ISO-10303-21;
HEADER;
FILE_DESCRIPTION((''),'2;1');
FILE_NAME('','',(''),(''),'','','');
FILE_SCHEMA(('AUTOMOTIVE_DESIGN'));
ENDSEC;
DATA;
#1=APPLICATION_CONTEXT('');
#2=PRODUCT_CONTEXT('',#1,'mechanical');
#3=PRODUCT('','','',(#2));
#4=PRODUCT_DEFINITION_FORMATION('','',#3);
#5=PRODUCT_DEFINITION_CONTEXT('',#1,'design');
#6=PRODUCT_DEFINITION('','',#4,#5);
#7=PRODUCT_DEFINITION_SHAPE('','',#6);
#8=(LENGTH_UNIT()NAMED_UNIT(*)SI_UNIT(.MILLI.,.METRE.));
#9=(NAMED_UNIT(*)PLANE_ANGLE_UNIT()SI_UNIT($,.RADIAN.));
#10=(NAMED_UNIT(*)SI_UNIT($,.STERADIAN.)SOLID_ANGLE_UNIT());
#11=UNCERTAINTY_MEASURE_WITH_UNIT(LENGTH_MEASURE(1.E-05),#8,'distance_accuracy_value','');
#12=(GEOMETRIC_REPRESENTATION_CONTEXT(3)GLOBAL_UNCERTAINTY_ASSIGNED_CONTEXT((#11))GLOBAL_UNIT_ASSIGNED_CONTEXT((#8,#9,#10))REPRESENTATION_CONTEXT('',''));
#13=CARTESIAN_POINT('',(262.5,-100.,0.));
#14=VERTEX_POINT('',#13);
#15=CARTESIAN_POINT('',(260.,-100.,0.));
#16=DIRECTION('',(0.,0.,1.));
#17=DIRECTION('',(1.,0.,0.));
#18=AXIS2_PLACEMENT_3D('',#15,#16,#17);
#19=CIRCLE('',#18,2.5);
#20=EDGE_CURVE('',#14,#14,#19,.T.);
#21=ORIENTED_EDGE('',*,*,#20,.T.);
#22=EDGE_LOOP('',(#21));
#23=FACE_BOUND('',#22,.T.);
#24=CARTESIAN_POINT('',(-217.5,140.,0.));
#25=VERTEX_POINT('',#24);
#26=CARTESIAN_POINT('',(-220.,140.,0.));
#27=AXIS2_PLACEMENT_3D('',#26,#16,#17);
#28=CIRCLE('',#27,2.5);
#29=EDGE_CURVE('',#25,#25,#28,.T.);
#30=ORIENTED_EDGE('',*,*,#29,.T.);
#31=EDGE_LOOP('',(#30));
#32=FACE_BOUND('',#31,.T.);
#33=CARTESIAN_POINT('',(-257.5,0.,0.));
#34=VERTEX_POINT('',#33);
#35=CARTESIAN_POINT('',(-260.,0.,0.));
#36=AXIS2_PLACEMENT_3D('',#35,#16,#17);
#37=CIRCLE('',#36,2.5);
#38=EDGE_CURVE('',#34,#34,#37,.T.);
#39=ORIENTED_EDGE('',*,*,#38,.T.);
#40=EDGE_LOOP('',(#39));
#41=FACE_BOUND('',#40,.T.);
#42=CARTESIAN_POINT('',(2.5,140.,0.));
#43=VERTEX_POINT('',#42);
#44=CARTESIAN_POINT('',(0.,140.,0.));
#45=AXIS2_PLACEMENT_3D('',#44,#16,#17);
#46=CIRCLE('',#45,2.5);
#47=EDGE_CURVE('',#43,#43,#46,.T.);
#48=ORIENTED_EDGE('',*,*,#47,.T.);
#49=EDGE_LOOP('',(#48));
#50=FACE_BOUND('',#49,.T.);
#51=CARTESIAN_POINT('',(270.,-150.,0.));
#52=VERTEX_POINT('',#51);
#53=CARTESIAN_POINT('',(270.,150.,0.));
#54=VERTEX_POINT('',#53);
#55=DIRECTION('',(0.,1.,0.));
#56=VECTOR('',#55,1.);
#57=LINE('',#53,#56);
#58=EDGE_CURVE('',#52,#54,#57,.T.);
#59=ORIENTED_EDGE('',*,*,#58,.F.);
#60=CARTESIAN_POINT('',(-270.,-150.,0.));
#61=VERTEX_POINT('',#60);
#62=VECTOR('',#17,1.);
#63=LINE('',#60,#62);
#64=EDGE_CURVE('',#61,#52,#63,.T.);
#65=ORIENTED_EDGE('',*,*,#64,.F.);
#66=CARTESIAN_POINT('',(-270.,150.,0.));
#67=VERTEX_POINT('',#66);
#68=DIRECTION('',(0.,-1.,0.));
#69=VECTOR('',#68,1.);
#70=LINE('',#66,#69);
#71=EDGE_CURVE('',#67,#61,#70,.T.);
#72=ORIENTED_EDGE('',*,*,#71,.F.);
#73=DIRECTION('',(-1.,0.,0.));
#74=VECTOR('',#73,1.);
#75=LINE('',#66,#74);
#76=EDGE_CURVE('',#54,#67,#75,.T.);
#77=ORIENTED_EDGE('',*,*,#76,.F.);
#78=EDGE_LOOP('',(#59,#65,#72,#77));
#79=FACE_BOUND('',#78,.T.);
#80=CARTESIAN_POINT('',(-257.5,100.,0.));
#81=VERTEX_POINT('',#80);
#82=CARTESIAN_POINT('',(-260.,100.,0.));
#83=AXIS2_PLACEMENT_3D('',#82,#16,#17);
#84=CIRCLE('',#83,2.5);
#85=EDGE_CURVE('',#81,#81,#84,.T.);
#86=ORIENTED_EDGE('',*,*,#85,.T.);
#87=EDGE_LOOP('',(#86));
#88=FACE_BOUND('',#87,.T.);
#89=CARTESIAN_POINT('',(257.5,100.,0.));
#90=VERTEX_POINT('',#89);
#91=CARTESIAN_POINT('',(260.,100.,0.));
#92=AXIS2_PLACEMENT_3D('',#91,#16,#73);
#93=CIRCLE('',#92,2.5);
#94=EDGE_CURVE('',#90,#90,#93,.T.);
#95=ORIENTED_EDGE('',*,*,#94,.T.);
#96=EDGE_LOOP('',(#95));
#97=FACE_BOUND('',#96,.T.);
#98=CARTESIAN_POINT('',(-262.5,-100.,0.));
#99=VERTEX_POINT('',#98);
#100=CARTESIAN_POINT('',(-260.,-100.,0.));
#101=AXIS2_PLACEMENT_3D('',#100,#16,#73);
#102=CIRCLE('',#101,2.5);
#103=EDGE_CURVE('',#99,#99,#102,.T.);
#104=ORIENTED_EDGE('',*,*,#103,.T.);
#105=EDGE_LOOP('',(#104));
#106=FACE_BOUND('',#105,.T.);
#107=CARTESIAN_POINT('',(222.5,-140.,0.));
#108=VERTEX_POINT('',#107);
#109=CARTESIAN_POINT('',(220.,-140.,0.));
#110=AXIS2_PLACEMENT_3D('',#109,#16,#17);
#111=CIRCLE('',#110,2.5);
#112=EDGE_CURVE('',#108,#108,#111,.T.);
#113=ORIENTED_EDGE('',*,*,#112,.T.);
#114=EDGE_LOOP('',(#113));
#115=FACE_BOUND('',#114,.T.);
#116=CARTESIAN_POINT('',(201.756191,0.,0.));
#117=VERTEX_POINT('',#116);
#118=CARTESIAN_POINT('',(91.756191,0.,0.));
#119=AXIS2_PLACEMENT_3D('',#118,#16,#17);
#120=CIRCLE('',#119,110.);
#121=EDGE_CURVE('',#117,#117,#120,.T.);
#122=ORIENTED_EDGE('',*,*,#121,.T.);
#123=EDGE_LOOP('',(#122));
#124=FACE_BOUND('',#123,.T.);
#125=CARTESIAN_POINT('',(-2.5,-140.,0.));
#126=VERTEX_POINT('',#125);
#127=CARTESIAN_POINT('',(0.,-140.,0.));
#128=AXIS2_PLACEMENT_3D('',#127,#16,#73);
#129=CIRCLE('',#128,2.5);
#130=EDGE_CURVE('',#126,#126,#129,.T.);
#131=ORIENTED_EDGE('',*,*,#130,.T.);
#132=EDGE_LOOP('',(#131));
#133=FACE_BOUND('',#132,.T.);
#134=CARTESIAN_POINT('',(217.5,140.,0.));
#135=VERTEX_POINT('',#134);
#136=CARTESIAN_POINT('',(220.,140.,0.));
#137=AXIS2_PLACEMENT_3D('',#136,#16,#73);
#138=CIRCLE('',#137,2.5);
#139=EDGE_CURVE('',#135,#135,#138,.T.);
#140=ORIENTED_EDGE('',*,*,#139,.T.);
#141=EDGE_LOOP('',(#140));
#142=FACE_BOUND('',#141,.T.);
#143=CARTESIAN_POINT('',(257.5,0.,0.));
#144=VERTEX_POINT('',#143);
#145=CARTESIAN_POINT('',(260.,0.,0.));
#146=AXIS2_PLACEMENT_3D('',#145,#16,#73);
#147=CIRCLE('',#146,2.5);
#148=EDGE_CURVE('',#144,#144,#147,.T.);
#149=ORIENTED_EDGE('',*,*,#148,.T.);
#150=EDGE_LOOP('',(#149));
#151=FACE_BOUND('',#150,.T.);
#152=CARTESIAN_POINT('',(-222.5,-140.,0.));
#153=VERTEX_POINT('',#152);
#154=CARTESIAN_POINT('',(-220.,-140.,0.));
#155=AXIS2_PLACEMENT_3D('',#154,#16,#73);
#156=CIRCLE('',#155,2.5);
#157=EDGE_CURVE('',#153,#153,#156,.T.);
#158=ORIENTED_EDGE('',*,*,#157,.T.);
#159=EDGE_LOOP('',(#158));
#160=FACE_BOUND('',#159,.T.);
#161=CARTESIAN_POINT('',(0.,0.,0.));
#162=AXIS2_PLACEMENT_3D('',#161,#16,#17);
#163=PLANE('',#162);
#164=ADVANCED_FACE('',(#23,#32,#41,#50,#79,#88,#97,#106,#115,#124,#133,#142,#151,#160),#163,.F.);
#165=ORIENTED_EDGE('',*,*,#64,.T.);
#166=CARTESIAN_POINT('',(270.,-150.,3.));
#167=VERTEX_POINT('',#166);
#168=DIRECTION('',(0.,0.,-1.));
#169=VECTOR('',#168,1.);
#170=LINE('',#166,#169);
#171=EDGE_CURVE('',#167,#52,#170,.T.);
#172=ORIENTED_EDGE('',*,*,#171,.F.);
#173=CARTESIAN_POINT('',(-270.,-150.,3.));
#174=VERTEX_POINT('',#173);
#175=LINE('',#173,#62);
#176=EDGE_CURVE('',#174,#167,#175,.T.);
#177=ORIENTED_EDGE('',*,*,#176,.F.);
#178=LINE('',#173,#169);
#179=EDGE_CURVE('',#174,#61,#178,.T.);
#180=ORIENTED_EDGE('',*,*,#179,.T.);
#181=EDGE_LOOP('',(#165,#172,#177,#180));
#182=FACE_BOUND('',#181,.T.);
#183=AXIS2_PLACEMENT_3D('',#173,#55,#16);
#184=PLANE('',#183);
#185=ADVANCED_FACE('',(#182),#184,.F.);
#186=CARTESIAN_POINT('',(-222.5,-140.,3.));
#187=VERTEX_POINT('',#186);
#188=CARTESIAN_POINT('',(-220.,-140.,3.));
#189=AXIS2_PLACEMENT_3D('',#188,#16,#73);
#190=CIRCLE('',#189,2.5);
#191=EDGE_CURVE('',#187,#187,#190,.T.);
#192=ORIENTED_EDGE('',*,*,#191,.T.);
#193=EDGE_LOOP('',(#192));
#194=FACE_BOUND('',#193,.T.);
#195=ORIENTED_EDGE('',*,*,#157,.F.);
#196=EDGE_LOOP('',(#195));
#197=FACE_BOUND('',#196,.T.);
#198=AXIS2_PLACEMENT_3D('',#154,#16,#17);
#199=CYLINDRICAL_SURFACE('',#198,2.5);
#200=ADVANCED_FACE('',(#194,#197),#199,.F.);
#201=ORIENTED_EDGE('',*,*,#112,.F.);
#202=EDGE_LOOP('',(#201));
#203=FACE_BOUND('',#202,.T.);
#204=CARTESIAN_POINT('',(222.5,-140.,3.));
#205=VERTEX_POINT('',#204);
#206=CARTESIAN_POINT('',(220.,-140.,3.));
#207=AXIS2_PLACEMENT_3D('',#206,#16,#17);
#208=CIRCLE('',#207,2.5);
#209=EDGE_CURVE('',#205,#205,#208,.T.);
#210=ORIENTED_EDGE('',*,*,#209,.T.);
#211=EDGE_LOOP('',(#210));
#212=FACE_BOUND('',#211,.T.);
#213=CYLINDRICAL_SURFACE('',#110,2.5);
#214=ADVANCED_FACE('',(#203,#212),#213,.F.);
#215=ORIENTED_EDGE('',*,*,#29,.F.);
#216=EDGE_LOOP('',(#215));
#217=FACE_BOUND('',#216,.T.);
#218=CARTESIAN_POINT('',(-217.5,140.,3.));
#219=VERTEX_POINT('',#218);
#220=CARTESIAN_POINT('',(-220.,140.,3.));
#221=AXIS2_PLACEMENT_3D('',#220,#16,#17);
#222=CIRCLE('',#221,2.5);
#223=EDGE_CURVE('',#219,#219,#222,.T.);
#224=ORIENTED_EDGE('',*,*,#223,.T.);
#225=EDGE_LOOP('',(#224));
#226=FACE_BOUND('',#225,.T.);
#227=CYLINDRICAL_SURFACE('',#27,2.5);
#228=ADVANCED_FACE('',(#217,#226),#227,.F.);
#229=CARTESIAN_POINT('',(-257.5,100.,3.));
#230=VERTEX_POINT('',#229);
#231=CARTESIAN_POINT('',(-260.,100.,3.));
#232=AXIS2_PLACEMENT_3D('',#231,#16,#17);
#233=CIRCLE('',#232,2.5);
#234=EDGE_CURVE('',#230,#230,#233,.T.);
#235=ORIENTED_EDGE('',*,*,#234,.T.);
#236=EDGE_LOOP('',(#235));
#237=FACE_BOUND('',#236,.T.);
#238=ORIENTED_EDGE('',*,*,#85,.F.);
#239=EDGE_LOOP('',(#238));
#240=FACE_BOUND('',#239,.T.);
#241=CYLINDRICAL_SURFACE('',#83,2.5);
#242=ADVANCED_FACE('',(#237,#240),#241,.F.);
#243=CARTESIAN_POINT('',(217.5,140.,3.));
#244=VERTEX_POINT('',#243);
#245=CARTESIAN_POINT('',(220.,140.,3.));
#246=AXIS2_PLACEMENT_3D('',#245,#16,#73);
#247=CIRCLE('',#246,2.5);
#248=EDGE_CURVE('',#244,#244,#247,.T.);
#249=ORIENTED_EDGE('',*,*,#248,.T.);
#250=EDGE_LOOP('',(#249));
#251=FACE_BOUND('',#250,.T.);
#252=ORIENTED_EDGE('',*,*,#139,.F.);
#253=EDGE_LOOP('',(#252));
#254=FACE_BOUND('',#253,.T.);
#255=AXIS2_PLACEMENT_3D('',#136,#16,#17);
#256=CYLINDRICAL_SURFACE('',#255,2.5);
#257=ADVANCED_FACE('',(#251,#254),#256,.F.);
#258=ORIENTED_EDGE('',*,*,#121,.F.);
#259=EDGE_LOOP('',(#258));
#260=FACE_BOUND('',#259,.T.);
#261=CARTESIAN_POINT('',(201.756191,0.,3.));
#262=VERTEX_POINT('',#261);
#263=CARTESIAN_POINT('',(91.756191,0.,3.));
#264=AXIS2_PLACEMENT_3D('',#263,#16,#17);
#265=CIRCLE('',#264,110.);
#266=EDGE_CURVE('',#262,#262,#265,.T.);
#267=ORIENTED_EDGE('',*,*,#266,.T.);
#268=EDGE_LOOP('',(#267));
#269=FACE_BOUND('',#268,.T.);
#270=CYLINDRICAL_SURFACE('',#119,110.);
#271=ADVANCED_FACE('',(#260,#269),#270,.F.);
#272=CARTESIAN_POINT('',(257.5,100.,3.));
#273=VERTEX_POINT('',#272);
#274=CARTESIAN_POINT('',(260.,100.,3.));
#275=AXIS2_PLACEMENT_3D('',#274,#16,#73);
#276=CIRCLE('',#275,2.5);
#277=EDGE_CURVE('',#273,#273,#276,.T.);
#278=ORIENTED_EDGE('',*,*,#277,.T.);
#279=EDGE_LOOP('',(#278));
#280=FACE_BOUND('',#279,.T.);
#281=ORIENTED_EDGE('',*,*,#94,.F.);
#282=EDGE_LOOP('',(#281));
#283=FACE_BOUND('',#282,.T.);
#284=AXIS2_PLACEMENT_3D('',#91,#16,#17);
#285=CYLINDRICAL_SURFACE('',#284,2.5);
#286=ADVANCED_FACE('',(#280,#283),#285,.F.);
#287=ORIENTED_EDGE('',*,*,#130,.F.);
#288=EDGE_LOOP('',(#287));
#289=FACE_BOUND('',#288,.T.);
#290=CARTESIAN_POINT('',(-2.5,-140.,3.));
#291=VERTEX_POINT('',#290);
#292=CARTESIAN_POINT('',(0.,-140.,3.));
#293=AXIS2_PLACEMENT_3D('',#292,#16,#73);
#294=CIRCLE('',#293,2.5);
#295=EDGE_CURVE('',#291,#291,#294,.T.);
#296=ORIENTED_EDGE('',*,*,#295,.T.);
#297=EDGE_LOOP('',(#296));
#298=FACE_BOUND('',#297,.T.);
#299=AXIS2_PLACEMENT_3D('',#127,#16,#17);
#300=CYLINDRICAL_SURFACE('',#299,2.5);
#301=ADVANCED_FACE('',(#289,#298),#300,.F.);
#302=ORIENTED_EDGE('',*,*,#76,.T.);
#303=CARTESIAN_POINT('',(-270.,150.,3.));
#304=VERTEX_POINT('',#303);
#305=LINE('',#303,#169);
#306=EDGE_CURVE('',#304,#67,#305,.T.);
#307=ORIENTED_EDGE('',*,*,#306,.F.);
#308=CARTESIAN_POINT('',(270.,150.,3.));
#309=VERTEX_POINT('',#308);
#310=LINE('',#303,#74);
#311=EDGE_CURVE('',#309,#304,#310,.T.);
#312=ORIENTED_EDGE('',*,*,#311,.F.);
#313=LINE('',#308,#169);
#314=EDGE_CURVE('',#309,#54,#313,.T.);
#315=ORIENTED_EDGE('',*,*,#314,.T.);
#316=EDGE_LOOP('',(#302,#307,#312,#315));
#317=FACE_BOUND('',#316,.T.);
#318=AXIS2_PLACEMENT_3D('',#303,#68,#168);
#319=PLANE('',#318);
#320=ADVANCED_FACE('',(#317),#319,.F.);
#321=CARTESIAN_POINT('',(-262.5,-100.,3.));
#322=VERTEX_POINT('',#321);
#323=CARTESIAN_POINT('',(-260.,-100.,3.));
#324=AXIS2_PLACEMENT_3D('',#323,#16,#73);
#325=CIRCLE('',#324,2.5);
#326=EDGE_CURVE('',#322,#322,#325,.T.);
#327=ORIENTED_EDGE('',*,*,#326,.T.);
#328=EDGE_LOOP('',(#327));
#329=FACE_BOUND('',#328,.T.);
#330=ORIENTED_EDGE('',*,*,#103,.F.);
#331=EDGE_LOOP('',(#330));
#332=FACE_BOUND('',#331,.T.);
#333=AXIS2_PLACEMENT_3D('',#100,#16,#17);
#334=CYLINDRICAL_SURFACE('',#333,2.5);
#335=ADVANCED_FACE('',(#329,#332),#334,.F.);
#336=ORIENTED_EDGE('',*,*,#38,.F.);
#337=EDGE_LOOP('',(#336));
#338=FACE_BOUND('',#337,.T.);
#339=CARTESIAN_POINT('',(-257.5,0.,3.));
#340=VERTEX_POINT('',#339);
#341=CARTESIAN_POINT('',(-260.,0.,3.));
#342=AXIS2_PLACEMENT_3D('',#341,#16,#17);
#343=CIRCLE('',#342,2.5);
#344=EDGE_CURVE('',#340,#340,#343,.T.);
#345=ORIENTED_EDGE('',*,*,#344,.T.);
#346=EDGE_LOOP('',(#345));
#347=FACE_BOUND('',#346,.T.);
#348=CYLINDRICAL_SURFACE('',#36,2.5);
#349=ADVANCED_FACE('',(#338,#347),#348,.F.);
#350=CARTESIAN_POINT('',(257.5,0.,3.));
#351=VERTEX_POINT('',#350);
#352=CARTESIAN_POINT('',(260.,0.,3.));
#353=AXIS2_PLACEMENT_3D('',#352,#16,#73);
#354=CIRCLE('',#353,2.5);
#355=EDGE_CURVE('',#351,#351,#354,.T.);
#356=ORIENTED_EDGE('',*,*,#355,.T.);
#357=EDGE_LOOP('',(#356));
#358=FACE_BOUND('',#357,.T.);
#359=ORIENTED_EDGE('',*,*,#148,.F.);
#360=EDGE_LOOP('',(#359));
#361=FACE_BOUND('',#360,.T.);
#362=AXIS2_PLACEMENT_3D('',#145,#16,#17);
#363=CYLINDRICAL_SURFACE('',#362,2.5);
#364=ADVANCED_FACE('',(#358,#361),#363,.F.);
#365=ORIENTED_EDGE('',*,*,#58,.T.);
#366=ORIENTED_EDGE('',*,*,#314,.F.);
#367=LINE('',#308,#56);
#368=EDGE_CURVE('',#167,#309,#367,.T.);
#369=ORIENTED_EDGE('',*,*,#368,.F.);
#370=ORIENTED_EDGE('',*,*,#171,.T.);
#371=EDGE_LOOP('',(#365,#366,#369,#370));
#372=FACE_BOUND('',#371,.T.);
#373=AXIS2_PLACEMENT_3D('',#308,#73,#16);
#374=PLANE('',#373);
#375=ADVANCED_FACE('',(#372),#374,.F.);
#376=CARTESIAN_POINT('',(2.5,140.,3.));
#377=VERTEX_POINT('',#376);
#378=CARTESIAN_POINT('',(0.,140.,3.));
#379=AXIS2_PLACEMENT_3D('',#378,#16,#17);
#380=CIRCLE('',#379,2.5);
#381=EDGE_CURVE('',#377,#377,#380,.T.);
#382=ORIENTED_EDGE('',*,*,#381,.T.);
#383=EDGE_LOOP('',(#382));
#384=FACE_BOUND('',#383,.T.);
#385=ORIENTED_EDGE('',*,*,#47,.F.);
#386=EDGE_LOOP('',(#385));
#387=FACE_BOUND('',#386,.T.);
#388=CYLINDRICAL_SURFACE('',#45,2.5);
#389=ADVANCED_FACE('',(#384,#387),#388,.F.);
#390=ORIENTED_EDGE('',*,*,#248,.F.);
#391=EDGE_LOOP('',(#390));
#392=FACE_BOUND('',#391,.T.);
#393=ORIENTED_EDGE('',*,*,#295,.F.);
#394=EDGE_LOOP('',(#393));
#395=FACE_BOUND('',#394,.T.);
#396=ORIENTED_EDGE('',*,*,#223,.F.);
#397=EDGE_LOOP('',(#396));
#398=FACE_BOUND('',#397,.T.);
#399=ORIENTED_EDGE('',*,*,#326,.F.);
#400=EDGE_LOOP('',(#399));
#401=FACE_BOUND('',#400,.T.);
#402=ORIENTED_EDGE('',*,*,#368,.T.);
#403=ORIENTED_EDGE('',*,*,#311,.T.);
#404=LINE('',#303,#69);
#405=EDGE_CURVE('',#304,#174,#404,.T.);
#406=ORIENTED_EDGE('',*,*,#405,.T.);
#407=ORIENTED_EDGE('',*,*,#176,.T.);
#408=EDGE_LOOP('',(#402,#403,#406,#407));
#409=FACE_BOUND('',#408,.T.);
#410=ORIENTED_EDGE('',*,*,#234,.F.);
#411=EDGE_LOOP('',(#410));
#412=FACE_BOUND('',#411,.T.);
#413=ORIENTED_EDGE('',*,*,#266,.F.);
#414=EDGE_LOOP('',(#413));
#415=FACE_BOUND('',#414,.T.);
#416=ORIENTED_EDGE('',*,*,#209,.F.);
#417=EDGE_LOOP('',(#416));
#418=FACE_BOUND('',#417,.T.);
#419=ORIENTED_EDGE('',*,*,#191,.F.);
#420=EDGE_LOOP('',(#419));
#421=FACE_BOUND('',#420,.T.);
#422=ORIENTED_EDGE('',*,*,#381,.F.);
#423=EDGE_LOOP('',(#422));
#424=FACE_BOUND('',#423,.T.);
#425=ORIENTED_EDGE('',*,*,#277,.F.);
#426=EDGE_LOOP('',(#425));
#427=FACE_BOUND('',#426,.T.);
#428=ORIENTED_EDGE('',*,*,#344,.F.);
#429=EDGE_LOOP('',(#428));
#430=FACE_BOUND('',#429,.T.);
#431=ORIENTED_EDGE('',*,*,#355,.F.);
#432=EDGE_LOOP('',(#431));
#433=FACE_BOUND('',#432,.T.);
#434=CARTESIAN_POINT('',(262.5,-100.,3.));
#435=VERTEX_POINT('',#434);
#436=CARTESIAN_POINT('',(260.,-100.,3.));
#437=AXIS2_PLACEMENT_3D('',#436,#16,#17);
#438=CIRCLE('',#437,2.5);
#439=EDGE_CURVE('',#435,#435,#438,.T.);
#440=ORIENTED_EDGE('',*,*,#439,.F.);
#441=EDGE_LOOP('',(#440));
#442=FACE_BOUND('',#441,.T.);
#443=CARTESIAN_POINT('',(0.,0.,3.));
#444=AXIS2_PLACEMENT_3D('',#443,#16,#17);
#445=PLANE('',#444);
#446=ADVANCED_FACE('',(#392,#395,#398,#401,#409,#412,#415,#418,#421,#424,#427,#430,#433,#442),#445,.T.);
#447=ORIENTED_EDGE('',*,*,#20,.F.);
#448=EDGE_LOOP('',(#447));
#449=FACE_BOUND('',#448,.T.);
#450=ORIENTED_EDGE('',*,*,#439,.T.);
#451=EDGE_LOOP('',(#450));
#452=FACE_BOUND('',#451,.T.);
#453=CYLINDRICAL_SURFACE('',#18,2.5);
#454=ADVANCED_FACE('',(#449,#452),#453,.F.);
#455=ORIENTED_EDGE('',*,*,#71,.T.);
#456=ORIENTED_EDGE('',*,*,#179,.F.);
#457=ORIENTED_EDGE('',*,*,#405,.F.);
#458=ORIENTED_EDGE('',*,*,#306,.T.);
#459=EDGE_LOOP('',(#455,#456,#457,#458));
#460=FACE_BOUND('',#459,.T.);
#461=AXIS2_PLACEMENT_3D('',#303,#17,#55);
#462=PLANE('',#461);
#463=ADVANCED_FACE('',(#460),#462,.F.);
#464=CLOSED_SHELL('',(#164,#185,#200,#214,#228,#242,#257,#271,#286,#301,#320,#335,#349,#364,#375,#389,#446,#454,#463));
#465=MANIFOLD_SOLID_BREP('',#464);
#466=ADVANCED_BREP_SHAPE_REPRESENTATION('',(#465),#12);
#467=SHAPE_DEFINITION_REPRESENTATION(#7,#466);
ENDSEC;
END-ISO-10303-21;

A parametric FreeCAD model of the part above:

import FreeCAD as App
import Part
import Sketcher

doc = App.newDocument("Part")
body = doc.addObject("PartDesign::Body", "Body")

# Sketch on XY plane
sketch1 = body.newObject("Sketcher::SketchObject", "Sketch")
sketch1.AttachmentSupport = (doc.getObject("XY_Plane"), [""])
sketch1.MapMode = "FlatFace"
sketch1.addGeometry(Part.LineSegment(App.Vector(-270, 150, 0), App.Vector(-270, -150, 0)), False)
sketch1.addGeometry(Part.LineSegment(App.Vector(-270, -150, 0), App.Vector(270, -150, 0)), False)
sketch1.addGeometry(Part.LineSegment(App.Vector(270, -150, 0), App.Vector(270, 150, 0)), False)
sketch1.addGeometry(Part.LineSegment(App.Vector(270, 150, 0), App.Vector(-270, 150, 0)), False)
sketch1.addConstraint(Sketcher.Constraint("Coincident", 0, 2, 1, 1))
sketch1.addConstraint(Sketcher.Constraint("Coincident", 1, 2, 2, 1))
sketch1.addConstraint(Sketcher.Constraint("Coincident", 2, 2, 3, 1))
sketch1.addConstraint(Sketcher.Constraint("Coincident", 3, 2, 0, 1))
sketch1.addConstraint(Sketcher.Constraint("Vertical", 0))
sketch1.addConstraint(Sketcher.Constraint("Horizontal", 1))
sketch1.addConstraint(Sketcher.Constraint("Vertical", 2))
sketch1.addConstraint(Sketcher.Constraint("Horizontal", 3))
sketch1.addConstraint(Sketcher.Constraint("Symmetric", 0, 2, 2, 2, -1, 1))
sketch1.addConstraint(Sketcher.Constraint("DistanceX", 1, 1, 1, 2, 540.0))
sketch1.addConstraint(Sketcher.Constraint("DistanceY", 0, 2, 0, 1, 300.0))
pad1 = body.newObject("PartDesign::Pad", "Pad")
pad1.Profile = sketch1
pad1.Length = 3

# Sketch on XY plane
sketch2 = body.newObject("Sketcher::SketchObject", "Sketch001")
sketch2.AttachmentSupport = (doc.getObject("XY_Plane"), [""])
sketch2.MapMode = "FlatFace"
sketch2.AttachmentOffset = App.Placement(App.Vector(0, 0, 3), App.Rotation())
sketch2.addGeometry(Part.Circle(App.Vector(0, 140, 0), App.Vector(0, 0, 1), 2.5), False)
sketch2.addGeometry(Part.Circle(App.Vector(-220, 140, 0), App.Vector(0, 0, 1), 2.5), False)
sketch2.addGeometry(Part.Circle(App.Vector(-260, 0, 0), App.Vector(0, 0, 1), 2.5), False)
sketch2.addGeometry(Part.Circle(App.Vector(-260, 100, 0), App.Vector(0, 0, 1), 2.5), False)
sketch2.addGeometry(Part.Circle(App.Vector(-260, -100, 0), App.Vector(0, 0, 1), 2.5), False)
sketch2.addGeometry(Part.Circle(App.Vector(220, 140, 0), App.Vector(0, 0, 1), 2.5), False)
sketch2.addGeometry(Part.Circle(App.Vector(260, -100, 0), App.Vector(0, 0, 1), 2.5), False)
sketch2.addGeometry(Part.Circle(App.Vector(260, 0, 0), App.Vector(0, 0, 1), 2.5), False)
sketch2.addGeometry(Part.Circle(App.Vector(260, 100, 0), App.Vector(0, 0, 1), 2.5), False)
sketch2.addGeometry(Part.Circle(App.Vector(220, -140, 0), App.Vector(0, 0, 1), 2.5), False)
sketch2.addGeometry(Part.Circle(App.Vector(0, -140, 0), App.Vector(0, 0, 1), 2.5), False)
sketch2.addGeometry(Part.Circle(App.Vector(-220, -140, 0), App.Vector(0, 0, 1), 2.5), False)
sketch2.addConstraint(Sketcher.Constraint("Equal", 0, 1))
sketch2.addConstraint(Sketcher.Constraint("Equal", 1, 2))
sketch2.addConstraint(Sketcher.Constraint("Equal", 2, 3))
sketch2.addConstraint(Sketcher.Constraint("Equal", 3, 4))
sketch2.addConstraint(Sketcher.Constraint("Equal", 4, 5))
sketch2.addConstraint(Sketcher.Constraint("Equal", 5, 6))
sketch2.addConstraint(Sketcher.Constraint("Equal", 6, 7))
sketch2.addConstraint(Sketcher.Constraint("Equal", 7, 8))
sketch2.addConstraint(Sketcher.Constraint("Equal", 8, 9))
sketch2.addConstraint(Sketcher.Constraint("Equal", 9, 10))
sketch2.addConstraint(Sketcher.Constraint("Equal", 10, 11))
sketch2.addConstraint(Sketcher.Constraint("Symmetric", 3, 3, 6, 3, -1, 1))
sketch2.addConstraint(Sketcher.Constraint("Symmetric", 2, 3, 7, 3, -1, 1))
sketch2.addConstraint(Sketcher.Constraint("Symmetric", 4, 3, 8, 3, -1, 1))
sketch2.addConstraint(Sketcher.Constraint("Symmetric", 1, 3, 9, 3, -1, 1))
sketch2.addConstraint(Sketcher.Constraint("Symmetric", 0, 3, 10, 3, -1, 1))
sketch2.addConstraint(Sketcher.Constraint("Symmetric", 5, 3, 11, 3, -1, 1))
sketch2.addConstraint(Sketcher.Constraint("Symmetric", 1, 3, 5, 3, -2))
sketch2.addConstraint(Sketcher.Constraint("Symmetric", 4, 3, 6, 3, -2))
sketch2.addConstraint(Sketcher.Constraint("PointOnObject", 0, 3, -2))
sketch2.addConstraint(Sketcher.Constraint("PointOnObject", 2, 3, -1))
sketch2.addConstraint(Sketcher.Constraint("Horizontal", 0, 3, 1, 3))
sketch2.addConstraint(Sketcher.Constraint("Vertical", 2, 3, 3, 3))
sketch2.addConstraint(Sketcher.Constraint("Diameter", 0, 5.0))
sketch2.addConstraint(Sketcher.Constraint("DistanceY", -1, 1, 0, 3, 140.0))
sketch2.addConstraint(Sketcher.Constraint("DistanceX", 1, 3, -1, 1, 220.0))
sketch2.addConstraint(Sketcher.Constraint("DistanceX", 2, 3, -1, 1, 260.0))
sketch2.addConstraint(Sketcher.Constraint("DistanceY", -1, 1, 3, 3, 100.0))
pocket1 = body.newObject("PartDesign::Pocket", "Pocket")
pocket1.Profile = sketch2
pocket1.Type = "ThroughAll"

# Sketch on XY plane
sketch3 = body.newObject("Sketcher::SketchObject", "Sketch002")
sketch3.AttachmentSupport = (doc.getObject("XY_Plane"), [""])
sketch3.MapMode = "FlatFace"
sketch3.AttachmentOffset = App.Placement(App.Vector(0, 0, 3), App.Rotation())
sketch3.addGeometry(Part.Circle(App.Vector(92, 0, 0), App.Vector(0, 0, 1), 110), False)
sketch3.addConstraint(Sketcher.Constraint("PointOnObject", 0, 3, -1))
sketch3.addConstraint(Sketcher.Constraint("Diameter", 0, 220.0))
sketch3.addConstraint(Sketcher.Constraint("DistanceX", -1, 1, 0, 3, 91.756191))
pocket2 = body.newObject("PartDesign::Pocket", "Pocket001")
pocket2.Profile = sketch3
pocket2.Type = "ThroughAll"

doc.recompute()
